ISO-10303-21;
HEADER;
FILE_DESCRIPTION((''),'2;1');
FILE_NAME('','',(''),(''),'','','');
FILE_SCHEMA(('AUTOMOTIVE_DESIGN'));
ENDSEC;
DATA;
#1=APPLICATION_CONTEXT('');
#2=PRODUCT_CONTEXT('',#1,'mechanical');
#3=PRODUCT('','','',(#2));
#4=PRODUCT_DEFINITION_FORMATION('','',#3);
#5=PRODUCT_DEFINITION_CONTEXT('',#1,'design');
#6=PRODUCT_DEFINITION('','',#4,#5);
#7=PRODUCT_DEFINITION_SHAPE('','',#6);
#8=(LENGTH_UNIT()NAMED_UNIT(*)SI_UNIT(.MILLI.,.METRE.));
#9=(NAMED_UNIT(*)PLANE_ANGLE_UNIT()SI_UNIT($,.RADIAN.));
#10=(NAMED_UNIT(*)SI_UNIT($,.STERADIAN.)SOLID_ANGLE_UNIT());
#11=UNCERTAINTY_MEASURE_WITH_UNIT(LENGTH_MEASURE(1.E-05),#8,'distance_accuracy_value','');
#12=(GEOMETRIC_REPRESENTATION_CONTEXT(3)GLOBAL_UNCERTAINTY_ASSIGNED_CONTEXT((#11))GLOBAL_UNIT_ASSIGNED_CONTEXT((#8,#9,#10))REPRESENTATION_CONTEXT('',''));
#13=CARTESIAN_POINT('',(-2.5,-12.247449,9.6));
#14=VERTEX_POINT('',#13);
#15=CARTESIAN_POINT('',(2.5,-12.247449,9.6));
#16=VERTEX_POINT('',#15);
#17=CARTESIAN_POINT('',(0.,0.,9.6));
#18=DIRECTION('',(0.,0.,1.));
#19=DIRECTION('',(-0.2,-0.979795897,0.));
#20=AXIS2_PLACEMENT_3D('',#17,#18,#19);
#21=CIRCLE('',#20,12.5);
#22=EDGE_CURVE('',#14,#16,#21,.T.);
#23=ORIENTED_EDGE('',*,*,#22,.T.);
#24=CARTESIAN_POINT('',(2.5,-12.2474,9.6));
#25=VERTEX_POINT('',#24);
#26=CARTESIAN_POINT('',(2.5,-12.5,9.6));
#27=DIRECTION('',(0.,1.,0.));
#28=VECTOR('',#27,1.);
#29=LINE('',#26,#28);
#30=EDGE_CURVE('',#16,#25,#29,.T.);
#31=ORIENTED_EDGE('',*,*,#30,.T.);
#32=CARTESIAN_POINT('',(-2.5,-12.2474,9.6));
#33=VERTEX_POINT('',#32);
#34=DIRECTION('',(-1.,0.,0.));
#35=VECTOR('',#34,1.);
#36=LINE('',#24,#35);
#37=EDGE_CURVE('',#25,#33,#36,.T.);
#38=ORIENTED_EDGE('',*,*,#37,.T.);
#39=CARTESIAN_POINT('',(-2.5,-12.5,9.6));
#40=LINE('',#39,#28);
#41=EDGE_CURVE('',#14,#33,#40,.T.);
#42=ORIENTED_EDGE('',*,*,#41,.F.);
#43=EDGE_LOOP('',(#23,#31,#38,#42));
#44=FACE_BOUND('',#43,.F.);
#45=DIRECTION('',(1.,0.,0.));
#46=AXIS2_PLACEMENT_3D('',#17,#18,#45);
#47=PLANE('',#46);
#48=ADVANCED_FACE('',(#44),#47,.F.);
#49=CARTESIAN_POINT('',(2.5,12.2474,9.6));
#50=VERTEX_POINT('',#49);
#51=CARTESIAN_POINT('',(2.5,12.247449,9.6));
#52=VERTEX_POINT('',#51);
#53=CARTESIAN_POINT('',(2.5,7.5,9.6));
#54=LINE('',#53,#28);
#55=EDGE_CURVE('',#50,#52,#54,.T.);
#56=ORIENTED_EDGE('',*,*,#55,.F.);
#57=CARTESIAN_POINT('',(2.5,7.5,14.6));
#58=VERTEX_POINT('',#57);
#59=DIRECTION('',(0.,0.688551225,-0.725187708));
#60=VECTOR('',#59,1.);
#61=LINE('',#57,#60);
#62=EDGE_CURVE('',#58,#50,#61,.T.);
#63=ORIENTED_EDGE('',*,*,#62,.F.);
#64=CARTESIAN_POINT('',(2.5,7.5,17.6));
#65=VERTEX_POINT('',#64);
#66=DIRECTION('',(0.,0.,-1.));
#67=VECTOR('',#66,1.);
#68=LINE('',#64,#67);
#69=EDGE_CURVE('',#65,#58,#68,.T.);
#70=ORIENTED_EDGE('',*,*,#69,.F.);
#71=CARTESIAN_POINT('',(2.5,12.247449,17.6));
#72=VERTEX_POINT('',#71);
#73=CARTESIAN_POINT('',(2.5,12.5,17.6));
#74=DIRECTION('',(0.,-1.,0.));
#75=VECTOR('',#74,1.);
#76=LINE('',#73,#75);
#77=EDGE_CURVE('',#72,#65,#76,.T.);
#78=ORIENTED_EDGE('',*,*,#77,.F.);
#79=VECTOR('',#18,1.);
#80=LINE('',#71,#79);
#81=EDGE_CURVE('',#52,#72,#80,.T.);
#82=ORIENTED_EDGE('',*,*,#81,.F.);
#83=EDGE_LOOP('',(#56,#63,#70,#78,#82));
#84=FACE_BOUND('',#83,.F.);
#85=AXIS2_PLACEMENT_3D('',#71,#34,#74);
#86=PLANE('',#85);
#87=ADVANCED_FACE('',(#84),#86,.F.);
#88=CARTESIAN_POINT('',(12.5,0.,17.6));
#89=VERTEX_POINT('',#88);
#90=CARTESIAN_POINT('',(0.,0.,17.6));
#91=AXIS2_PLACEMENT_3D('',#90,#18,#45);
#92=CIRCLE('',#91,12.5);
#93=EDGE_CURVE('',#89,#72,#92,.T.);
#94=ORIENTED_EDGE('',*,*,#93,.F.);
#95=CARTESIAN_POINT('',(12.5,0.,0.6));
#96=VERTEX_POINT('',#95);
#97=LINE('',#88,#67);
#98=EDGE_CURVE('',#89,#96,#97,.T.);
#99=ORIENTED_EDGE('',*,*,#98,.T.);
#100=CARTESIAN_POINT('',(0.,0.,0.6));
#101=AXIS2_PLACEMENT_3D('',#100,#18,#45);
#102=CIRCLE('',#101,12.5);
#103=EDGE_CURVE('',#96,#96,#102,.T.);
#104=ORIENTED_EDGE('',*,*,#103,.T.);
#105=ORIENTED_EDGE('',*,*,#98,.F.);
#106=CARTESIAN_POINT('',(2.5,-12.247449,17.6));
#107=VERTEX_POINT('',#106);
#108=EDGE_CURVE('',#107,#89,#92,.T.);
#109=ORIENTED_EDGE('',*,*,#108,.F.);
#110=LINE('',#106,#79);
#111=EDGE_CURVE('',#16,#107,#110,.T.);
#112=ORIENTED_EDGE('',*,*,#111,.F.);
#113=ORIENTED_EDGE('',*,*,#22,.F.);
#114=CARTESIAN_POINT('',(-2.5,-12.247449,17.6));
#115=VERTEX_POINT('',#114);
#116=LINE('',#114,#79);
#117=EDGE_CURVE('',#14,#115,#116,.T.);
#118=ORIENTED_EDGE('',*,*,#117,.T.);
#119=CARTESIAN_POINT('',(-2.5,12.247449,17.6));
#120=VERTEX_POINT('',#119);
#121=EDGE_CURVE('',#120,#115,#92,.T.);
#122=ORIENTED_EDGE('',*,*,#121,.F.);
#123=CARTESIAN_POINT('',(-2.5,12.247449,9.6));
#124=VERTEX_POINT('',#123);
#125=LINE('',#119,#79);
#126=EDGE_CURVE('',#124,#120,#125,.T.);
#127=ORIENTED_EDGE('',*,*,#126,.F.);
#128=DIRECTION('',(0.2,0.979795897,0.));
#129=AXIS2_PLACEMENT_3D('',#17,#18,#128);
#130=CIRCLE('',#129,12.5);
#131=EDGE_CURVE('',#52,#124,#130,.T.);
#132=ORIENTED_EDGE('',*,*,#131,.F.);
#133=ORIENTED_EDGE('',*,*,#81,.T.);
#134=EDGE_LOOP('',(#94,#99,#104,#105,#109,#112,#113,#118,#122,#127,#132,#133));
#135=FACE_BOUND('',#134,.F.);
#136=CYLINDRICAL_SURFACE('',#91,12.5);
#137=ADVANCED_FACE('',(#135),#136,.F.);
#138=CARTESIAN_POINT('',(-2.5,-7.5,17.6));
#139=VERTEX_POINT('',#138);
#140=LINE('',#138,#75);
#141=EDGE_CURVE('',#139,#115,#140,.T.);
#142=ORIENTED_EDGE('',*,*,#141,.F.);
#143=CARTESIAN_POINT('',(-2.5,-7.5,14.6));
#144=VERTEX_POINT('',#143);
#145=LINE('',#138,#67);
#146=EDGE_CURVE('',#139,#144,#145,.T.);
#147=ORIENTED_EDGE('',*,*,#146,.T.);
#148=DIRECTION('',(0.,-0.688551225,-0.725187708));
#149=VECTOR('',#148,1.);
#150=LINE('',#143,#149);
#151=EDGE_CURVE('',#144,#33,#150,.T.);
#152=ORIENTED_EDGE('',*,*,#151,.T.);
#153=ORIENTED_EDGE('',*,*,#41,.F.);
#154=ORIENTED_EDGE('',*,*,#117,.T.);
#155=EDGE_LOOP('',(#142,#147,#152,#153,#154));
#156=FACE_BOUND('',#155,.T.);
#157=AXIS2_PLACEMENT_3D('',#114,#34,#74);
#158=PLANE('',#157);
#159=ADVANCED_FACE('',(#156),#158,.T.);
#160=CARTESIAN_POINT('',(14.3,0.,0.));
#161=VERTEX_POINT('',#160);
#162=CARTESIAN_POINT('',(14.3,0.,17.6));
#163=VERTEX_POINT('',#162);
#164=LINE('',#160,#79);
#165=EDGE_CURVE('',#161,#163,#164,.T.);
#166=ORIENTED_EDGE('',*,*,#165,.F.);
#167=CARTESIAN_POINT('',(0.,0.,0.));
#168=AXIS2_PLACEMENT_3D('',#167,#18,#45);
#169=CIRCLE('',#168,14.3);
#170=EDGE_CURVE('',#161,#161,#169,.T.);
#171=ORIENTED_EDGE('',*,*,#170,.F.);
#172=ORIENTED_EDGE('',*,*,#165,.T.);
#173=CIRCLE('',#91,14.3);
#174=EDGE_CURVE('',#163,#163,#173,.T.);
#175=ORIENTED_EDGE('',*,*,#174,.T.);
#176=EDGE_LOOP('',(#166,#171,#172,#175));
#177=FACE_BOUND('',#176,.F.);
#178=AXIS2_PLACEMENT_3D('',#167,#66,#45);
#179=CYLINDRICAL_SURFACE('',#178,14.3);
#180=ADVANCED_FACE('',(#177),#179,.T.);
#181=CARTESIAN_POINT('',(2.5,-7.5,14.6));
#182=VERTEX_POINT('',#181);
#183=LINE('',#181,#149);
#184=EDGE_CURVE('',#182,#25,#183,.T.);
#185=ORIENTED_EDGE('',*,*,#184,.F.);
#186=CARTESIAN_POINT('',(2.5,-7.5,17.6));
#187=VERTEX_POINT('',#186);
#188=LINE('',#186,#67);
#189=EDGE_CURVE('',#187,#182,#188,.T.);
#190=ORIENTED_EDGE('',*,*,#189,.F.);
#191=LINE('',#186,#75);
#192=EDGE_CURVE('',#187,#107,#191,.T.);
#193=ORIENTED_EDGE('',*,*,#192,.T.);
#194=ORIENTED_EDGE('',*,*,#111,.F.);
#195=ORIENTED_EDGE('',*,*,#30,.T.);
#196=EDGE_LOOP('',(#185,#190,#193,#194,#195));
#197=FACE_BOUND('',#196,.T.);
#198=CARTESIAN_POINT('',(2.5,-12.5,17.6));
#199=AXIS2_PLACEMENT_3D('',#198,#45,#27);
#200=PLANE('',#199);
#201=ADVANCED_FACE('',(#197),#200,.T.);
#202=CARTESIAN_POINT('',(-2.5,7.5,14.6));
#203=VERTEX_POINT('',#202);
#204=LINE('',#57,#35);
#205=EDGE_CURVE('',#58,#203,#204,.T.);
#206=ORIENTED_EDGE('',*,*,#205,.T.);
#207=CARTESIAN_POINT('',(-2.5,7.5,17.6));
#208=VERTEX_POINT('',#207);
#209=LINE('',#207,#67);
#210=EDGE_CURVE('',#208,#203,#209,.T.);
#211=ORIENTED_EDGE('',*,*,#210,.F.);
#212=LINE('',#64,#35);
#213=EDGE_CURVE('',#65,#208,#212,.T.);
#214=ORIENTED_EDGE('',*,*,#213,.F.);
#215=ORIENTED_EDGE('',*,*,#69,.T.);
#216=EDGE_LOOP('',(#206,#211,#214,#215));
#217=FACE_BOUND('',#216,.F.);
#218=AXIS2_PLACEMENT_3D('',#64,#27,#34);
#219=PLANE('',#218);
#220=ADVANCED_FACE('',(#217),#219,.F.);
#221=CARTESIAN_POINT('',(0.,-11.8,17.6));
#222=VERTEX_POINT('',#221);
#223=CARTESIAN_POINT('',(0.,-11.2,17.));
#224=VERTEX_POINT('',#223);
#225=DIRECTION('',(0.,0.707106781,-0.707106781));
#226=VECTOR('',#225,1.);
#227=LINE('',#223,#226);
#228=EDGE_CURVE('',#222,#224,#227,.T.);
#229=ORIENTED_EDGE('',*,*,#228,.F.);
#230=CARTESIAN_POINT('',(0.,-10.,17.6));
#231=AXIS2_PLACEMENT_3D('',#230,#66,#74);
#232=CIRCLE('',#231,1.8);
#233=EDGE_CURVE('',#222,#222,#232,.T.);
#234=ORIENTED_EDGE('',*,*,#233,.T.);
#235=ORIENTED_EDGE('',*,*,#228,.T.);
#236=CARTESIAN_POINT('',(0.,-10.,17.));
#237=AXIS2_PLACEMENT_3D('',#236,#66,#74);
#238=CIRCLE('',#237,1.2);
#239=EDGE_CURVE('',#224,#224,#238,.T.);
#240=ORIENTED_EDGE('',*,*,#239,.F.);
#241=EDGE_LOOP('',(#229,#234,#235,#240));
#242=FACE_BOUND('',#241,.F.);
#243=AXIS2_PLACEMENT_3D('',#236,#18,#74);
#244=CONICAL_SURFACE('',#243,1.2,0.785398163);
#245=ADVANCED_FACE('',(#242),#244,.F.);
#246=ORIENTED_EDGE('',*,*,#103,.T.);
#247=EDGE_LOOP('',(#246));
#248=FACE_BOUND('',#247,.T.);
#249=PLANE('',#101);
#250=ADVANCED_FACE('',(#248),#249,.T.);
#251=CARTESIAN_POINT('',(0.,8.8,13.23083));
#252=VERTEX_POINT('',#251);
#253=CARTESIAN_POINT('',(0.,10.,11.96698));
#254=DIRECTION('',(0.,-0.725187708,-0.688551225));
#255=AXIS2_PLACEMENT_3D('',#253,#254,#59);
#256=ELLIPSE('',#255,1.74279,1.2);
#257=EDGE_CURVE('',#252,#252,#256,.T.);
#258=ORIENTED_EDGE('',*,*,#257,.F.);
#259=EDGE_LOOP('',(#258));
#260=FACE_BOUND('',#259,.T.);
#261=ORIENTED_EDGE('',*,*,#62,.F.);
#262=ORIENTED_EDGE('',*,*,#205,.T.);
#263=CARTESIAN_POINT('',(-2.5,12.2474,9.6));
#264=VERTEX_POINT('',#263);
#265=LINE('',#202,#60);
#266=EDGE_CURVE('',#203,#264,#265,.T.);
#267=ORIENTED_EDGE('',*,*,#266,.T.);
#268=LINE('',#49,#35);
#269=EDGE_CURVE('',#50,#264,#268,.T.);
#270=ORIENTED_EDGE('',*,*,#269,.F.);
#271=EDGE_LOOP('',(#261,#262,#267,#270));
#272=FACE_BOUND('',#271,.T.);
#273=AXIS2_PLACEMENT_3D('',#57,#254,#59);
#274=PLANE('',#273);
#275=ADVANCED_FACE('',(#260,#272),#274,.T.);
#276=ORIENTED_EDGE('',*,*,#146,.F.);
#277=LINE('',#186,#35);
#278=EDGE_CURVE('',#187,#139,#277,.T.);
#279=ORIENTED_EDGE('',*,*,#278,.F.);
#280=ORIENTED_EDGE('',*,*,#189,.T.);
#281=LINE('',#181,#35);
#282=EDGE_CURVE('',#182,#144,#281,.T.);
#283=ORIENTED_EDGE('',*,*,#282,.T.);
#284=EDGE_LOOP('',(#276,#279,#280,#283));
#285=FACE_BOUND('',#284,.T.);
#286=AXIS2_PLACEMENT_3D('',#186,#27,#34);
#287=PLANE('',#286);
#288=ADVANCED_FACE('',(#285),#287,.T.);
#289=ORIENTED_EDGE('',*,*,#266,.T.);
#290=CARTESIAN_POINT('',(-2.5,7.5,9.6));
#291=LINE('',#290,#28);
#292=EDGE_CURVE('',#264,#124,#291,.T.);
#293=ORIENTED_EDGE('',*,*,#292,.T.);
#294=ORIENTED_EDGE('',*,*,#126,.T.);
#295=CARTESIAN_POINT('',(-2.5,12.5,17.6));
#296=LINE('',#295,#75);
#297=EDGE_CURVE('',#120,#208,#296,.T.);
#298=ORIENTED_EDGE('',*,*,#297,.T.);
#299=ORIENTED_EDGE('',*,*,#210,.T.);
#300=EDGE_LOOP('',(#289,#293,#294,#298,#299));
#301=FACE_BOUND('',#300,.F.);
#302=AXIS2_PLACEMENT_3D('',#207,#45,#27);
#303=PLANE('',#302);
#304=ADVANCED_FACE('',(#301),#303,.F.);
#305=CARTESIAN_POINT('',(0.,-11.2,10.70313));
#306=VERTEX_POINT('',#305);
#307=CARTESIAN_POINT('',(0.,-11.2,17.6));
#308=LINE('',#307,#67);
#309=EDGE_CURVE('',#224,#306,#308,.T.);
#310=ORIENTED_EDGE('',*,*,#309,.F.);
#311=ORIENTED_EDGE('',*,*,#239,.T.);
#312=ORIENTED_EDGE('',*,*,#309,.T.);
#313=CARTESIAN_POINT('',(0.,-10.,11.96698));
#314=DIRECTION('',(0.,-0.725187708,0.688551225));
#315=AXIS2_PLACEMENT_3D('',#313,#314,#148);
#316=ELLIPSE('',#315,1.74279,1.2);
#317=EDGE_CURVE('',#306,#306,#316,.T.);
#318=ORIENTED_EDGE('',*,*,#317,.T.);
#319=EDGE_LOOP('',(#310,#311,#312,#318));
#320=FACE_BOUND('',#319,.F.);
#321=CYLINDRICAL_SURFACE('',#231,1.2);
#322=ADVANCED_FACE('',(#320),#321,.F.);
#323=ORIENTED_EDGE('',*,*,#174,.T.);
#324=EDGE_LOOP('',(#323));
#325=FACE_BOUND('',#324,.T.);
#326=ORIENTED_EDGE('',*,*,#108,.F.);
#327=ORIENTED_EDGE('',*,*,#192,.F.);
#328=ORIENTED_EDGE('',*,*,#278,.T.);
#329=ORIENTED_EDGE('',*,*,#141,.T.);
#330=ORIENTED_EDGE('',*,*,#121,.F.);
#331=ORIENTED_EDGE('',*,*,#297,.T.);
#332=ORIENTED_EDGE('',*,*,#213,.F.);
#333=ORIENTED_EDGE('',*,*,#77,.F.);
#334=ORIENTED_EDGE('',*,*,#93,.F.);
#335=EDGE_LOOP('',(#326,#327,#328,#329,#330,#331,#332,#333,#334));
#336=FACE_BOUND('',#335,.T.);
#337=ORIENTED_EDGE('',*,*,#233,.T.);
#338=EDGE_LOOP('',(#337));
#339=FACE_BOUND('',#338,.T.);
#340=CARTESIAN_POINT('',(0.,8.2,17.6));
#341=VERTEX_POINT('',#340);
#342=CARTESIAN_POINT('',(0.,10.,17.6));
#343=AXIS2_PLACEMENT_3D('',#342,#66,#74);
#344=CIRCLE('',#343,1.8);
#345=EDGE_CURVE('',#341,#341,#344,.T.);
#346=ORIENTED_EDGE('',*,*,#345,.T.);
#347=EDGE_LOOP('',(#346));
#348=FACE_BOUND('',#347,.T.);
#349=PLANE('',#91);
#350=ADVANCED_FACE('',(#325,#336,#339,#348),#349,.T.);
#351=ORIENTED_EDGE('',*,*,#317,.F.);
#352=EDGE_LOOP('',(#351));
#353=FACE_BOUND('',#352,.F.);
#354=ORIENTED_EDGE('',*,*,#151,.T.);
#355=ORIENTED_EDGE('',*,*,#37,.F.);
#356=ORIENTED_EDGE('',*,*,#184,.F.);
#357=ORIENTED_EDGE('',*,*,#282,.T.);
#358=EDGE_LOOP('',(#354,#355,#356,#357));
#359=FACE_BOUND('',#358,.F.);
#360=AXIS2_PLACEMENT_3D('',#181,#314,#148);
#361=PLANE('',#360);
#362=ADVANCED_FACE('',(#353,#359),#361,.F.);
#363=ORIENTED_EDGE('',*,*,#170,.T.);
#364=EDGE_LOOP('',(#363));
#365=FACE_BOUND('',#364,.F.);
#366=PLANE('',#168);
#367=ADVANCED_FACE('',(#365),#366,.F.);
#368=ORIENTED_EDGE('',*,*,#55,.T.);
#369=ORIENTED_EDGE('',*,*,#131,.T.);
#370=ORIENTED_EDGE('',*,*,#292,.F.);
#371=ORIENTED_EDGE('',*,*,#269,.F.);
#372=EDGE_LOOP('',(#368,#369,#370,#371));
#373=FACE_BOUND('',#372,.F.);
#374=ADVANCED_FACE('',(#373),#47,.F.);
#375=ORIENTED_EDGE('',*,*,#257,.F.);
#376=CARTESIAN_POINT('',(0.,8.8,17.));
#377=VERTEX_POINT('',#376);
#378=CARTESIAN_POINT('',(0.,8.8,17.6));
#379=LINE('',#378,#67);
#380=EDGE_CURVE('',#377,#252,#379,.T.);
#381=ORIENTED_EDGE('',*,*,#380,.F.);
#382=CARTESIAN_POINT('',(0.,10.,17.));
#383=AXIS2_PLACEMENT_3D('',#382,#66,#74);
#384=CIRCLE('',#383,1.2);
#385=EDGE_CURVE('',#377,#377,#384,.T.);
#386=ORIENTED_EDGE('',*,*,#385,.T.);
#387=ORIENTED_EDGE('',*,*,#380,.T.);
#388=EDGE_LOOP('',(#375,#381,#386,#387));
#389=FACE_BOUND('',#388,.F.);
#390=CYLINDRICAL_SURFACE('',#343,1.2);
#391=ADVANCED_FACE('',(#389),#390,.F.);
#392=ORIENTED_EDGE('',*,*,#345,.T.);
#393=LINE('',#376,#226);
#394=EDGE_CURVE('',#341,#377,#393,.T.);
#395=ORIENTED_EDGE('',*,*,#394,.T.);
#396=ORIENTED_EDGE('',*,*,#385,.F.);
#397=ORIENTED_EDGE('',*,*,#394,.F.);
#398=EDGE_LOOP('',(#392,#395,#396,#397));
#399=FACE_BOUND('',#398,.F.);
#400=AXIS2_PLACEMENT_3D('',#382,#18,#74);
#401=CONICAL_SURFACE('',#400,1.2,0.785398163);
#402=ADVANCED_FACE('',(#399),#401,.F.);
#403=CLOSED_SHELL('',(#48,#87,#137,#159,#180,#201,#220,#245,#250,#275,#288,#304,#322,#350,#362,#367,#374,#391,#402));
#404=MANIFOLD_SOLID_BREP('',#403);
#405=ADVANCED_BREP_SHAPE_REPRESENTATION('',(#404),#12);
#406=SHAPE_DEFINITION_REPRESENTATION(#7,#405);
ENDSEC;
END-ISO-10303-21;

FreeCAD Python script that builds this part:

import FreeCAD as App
import Part
import Sketcher
from FreeCAD import Vector
Q = App.Units.Quantity


def edges_at(feature, points):
    """Names of the edges that pass closest to the given points."""
    edges = feature.Shape.Edges
    near = lambda p: min(range(len(edges)), key=lambda i: edges[i].distToShape(Part.Vertex(*p))[0])
    return sorted({f"Edge{near(p) + 1}" for p in points})


def add_polygon(sketch, points):
    """Adds a closed chain of lines whose ends are joined by coincident constraints."""
    first, n = sketch.GeometryCount, len(points)
    for a, b in zip(points, points[1:] + points[:1]):
        sketch.addGeometry(Part.LineSegment(App.Vector(*a, 0), App.Vector(*b, 0)), False)
    for i in range(n):
        sketch.addConstraint(Sketcher.Constraint("Coincident", first + i, 2, first + (i + 1) % n, 1))

doc = App.newDocument("Part")
body = doc.addObject("PartDesign::Body", "Body")

sketch1 = body.newObject("Sketcher::SketchObject", "Sketch")
sketch1.AttachmentSupport = (doc.getObject("XY_Plane"), [""])
sketch1.MapMode = "FlatFace"
sketch1.addGeometry(Part.Circle(Vector(0, 0, 0), Vector(0, 0, 1), 14), False)
sketch1.addConstraint(Sketcher.Constraint("Coincident", 0, 3, -1, 1))
sketch1.addConstraint(Sketcher.Constraint("Diameter", 0, Q("28.6 mm")))
pad1 = body.newObject("PartDesign::Pad", "Pad")
pad1.Profile = sketch1
pad1.Length = 17.6

sketch2 = body.newObject("Sketcher::SketchObject", "Sketch001")
sketch2.AttachmentSupport = (doc.getObject("XY_Plane"), [""])
sketch2.MapMode = "FlatFace"
sketch2.AttachmentOffset = App.Placement(Vector(0, 0, 17.6), App.Rotation())
sketch2.addGeometry(Part.Circle(Vector(0, 0, 0), Vector(0, 0, 1), 12), False)
sketch2.addConstraint(Sketcher.Constraint("Coincident", 0, 3, -1, 1))
sketch2.addConstraint(Sketcher.Constraint("Diameter", 0, Q("25 mm")))
pocket1 = body.newObject("PartDesign::Pocket", "Pocket")
pocket1.Profile = sketch2
pocket1.Length = 17

sketch3 = body.newObject("Sketcher::SketchObject", "Sketch002")
sketch3.AttachmentSupport = (doc.getObject("XY_Plane"), [""])
sketch3.MapMode = "FlatFace"
sketch3.AttachmentOffset = App.Placement(Vector(0, 0, 17.6), App.Rotation())
add_polygon(sketch3, [(2, 8), (2, 12), (-2, 12), (-2, 8)])
add_polygon(sketch3, [(2, -12), (2, -8), (-2, -8), (-2, -12)])
sketch3.addConstraint(Sketcher.Constraint("Vertical", 0))
sketch3.addConstraint(Sketcher.Constraint("Horizontal", 1))
sketch3.addConstraint(Sketcher.Constraint("Vertical", 2))
sketch3.addConstraint(Sketcher.Constraint("Horizontal", 3))
sketch3.addConstraint(Sketcher.Constraint("Vertical", 4))
sketch3.addConstraint(Sketcher.Constraint("Horizontal", 5))
sketch3.addConstraint(Sketcher.Constraint("Vertical", 6))
sketch3.addConstraint(Sketcher.Constraint("Horizontal", 7))
sketch3.addConstraint(Sketcher.Constraint("Symmetric", 2, 2, 4, 2, -1, 1))
sketch3.addConstraint(Sketcher.Constraint("Symmetric", 0, 2, 6, 2, -1, 1))
sketch3.addConstraint(Sketcher.Constraint("Vertical", 3, 2, 4, 2))
sketch3.addConstraint(Sketcher.Constraint("Equal", 7, 0))
sketch3.addConstraint(Sketcher.Constraint("DistanceX", 1, 2, 1, 1, Q("5 mm")))
sketch3.addConstraint(Sketcher.Constraint("DistanceY", 4, 2, 3, 2, Q("15 mm")))
pad2 = body.newObject("PartDesign::Pad", "Pad001")
pad2.Profile = sketch3
pad2.Length = 8
pad2.Reversed = True

sketch4 = body.newObject("Sketcher::SketchObject", "Sketch003")
sketch4.AttachmentSupport = (doc.getObject("YZ_Plane"), [""])
sketch4.MapMode = "FlatFace"
sketch4.AttachmentOffset = App.Placement(Vector(0, 0, 2.5), App.Rotation())
add_polygon(sketch4, [(12.2, 9.6), (7.5, 14.6), (7.5, 9.6)])
add_polygon(sketch4, [(-7.5, 9.6), (-7.5, 14.6), (-12.2, 9.6)])
sketch4.addConstraint(Sketcher.Constraint("Vertical", 1))
sketch4.addConstraint(Sketcher.Constraint("Horizontal", 2))
sketch4.addConstraint(Sketcher.Constraint("Vertical", 3))
sketch4.addConstraint(Sketcher.Constraint("Horizontal", 5))
sketch4.addConstraint(Sketcher.Constraint("Symmetric", 0, 2, 3, 2, -2))
sketch4.addConstraint(Sketcher.Constraint("Symmetric", 2, 2, 4, 2, -2))
sketch4.addConstraint(Sketcher.Constraint("DistanceY", 1, 2, 1, 1, Q("5 mm")))
sketch4.addConstraint(Sketcher.Constraint("DistanceX", 3, 2, 0, 2, Q("15 mm")))
sketch4.addConstraint(Sketcher.Constraint("DistanceY", -1, 1, 0, 2, Q("14.6 mm")))
sketch4.addConstraint(Sketcher.Constraint("DistanceX", 2, 1, 2, 2, Q("4.7474 mm")))
pocket2 = body.newObject("PartDesign::Pocket", "Pocket001")
pocket2.Profile = sketch4
pocket2.Length = 5

sketch5 = body.newObject("Sketcher::SketchObject", "Sketch004")
sketch5.AttachmentSupport = (doc.getObject("XY_Plane"), [""])
sketch5.MapMode = "FlatFace"
sketch5.AttachmentOffset = App.Placement(Vector(0, 0, 17.6), App.Rotation())
sketch5.addGeometry(Part.Circle(Vector(0, 10, 0), Vector(0, 0, 1), 1.2), False)
sketch5.addGeometry(Part.Circle(Vector(0, -10, 0), Vector(0, 0, 1), 1.2), False)
sketch5.addConstraint(Sketcher.Constraint("Equal", 0, 1))
sketch5.addConstraint(Sketcher.Constraint("Symmetric", 0, 3, 1, 3, -1, 1))
sketch5.addConstraint(Sketcher.Constraint("PointOnObject", 0, 3, -2))
sketch5.addConstraint(Sketcher.Constraint("Diameter", 0, Q("2.4 mm")))
sketch5.addConstraint(Sketcher.Constraint("DistanceY", -1, 1, 0, 3, Q("10 mm")))
doc.recompute()
hole = body.newObject("PartDesign::Hole", "Hole")
hole.Profile = sketch5
hole.ThreadType = "None"
hole.Diameter = 2.4
hole.DepthType = "Dimension"
hole.Depth = 10
hole.DrillPoint = "Angled"
hole.DrillPointAngle = 118
doc.recompute()

chamfer = body.newObject("PartDesign::Chamfer", "Chamfer")
chamfer.Base = (hole, edges_at(hole, [(0, -8.8, 17.6), (0, 11.2, 17.6)]))
chamfer.Size = 0.6

doc.recompute()
